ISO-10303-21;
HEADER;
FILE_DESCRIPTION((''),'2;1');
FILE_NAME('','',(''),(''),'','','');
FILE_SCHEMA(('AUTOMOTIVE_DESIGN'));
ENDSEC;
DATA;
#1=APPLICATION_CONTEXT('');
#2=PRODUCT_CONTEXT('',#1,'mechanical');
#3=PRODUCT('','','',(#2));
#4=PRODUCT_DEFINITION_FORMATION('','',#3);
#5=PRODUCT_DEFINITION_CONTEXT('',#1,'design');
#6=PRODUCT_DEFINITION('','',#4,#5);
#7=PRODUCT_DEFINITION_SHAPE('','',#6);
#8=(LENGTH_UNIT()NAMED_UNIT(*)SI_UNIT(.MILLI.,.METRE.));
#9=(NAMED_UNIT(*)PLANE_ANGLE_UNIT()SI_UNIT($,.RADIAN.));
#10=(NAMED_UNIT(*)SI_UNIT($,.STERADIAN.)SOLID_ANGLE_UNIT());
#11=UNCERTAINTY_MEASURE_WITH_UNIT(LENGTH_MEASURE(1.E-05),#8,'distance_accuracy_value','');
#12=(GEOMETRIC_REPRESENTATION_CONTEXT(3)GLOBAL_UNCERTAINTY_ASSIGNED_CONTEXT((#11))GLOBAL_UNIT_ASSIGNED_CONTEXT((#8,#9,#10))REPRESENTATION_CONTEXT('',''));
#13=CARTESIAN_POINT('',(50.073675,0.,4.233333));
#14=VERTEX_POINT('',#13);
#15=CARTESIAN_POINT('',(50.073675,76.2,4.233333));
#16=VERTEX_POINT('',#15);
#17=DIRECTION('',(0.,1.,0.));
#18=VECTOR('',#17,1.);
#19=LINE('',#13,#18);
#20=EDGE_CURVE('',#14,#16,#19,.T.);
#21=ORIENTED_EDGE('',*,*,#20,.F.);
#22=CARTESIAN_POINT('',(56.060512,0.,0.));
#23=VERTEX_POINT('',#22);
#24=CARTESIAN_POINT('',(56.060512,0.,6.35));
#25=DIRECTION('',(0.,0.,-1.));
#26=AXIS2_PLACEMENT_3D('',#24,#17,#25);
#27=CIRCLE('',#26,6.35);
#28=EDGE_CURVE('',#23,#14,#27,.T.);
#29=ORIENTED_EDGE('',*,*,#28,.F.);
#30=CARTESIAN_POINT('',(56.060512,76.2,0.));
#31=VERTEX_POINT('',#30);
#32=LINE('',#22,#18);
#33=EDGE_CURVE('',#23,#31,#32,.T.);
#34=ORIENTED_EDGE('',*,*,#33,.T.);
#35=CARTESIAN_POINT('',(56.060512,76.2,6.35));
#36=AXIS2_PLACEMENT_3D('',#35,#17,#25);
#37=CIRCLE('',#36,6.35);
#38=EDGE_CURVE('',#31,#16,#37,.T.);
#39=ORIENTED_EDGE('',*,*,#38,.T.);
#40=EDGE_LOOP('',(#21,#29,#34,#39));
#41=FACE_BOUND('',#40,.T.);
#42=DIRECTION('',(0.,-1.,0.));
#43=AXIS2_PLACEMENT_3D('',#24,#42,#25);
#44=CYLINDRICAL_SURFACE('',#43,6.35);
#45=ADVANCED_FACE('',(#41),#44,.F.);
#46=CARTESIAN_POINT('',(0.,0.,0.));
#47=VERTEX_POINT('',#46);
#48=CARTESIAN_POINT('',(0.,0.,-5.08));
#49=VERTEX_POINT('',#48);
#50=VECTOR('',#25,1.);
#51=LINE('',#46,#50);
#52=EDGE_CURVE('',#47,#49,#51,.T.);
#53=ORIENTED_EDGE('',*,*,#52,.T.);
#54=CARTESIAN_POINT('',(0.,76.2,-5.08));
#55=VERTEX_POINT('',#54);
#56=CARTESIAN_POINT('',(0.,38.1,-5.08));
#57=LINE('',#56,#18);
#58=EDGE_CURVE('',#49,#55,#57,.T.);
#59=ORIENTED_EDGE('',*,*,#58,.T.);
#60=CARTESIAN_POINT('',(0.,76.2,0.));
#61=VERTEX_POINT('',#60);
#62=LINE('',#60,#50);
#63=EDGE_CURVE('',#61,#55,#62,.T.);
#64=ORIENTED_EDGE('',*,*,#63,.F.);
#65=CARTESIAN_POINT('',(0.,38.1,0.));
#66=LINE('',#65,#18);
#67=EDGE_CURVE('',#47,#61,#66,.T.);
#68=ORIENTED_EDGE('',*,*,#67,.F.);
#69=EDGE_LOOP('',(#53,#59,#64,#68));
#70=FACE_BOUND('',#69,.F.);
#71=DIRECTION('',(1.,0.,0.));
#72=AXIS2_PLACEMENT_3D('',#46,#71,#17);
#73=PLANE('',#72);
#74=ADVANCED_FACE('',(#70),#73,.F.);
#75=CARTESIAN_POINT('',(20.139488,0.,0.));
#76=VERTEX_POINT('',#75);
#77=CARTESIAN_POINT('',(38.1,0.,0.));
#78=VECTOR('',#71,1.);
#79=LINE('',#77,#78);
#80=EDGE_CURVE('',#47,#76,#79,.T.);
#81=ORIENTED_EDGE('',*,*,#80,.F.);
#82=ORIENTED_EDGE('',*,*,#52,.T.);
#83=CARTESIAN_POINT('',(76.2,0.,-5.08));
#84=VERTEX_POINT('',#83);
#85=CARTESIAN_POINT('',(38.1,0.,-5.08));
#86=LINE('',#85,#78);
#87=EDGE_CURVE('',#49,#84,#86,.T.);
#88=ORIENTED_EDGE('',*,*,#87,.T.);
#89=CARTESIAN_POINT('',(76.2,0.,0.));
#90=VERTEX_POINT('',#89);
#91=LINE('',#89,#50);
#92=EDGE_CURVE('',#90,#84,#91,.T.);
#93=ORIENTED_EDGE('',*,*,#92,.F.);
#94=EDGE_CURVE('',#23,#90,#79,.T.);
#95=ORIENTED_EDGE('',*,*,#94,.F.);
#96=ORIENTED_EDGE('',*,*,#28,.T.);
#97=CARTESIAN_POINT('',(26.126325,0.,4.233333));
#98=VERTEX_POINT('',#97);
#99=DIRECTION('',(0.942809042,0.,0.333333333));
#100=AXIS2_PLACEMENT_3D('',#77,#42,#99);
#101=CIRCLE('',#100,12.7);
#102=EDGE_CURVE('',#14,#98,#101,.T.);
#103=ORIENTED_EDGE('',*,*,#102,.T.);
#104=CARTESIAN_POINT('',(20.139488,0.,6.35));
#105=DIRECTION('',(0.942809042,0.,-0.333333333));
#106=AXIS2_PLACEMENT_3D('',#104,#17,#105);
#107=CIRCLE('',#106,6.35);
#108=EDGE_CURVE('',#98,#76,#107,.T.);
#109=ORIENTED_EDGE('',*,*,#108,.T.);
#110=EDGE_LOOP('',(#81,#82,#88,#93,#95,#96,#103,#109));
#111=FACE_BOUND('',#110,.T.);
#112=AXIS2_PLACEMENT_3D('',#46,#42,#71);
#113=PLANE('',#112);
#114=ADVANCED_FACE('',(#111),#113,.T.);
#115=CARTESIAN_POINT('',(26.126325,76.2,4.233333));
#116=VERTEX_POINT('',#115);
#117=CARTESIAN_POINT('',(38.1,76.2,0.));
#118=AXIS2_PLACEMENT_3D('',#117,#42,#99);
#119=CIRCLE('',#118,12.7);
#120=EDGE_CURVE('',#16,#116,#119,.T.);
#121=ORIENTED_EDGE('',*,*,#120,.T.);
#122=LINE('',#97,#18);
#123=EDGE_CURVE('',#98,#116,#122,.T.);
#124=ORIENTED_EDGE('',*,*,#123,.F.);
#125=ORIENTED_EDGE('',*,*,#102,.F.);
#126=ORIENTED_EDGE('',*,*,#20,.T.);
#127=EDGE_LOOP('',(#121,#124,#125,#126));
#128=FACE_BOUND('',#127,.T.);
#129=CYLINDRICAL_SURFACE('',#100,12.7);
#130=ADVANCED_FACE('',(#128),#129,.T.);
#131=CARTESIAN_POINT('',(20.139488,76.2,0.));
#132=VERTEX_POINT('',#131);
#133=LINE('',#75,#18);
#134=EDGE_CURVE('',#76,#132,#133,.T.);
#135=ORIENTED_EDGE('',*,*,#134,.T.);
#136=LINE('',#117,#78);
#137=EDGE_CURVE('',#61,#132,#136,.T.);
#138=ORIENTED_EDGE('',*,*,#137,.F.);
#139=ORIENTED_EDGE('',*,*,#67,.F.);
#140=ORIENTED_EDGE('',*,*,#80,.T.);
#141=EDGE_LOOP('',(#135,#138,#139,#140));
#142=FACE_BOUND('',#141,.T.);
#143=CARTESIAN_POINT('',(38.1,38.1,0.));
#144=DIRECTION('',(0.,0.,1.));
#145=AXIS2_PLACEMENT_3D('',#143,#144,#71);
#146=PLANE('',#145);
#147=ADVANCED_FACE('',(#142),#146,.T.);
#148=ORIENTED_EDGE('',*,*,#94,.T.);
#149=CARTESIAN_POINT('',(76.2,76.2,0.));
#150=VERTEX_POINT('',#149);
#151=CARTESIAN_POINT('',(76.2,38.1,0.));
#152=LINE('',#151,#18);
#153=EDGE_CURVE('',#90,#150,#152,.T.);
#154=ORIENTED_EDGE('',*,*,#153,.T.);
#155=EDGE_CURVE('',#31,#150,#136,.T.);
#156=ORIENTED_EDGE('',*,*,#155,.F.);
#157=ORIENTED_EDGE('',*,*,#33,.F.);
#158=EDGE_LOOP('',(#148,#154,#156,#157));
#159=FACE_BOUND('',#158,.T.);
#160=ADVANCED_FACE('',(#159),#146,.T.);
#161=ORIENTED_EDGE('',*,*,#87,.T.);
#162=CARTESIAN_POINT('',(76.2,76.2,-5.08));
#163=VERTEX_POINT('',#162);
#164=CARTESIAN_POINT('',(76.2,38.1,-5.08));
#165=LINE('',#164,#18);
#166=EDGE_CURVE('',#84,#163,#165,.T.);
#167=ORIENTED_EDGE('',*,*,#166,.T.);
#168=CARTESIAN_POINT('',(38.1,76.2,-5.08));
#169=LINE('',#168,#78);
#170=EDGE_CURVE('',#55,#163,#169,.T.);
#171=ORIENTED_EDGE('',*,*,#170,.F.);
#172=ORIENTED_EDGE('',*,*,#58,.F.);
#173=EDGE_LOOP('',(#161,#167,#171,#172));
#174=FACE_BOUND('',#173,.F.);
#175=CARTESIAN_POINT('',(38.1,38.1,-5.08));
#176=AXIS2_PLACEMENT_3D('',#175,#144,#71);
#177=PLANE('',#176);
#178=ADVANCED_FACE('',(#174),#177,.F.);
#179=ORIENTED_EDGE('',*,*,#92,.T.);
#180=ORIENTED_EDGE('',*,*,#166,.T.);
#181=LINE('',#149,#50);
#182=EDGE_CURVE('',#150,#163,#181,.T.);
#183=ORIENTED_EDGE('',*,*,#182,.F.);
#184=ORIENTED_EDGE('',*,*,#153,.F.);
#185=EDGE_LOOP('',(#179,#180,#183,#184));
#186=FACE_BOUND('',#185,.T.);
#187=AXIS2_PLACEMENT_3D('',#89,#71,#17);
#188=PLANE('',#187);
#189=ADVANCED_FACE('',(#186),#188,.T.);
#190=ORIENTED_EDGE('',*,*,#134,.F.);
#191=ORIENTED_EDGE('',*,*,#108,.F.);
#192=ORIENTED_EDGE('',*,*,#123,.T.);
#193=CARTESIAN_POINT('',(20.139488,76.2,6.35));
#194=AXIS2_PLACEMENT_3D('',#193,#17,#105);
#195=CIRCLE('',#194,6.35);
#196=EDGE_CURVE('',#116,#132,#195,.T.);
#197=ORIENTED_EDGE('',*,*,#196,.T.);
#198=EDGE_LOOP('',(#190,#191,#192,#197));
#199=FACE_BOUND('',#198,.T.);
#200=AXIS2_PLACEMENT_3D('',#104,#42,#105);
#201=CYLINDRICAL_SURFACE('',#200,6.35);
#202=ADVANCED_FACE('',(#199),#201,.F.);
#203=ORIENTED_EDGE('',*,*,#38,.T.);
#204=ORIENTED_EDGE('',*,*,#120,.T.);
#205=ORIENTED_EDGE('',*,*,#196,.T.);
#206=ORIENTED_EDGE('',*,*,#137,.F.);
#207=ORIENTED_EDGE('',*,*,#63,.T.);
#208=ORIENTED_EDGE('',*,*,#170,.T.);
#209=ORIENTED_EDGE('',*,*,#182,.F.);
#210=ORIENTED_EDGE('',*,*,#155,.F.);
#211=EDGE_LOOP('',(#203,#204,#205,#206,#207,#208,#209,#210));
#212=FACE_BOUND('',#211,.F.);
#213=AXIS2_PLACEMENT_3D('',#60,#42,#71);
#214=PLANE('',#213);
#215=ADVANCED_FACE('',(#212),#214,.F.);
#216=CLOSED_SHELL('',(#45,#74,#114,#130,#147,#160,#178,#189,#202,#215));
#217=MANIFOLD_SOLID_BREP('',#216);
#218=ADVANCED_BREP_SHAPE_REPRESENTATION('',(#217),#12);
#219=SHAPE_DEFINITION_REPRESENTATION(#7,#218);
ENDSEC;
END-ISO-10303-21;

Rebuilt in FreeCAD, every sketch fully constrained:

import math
import FreeCAD as App
import Part
import Sketcher

V = App.Vector
Q = App.Units.Quantity


def add_polygon(sketch, points):
    """Adds a closed chain of lines whose ends are joined by coincident constraints."""
    first, n = sketch.GeometryCount, len(points)
    for a, b in zip(points, points[1:] + points[:1]):
        sketch.addGeometry(Part.LineSegment(App.Vector(*a, 0), App.Vector(*b, 0)), False)
    for i in range(n):
        sketch.addConstraint(Sketcher.Constraint("Coincident", first + i, 2, first + (i + 1) % n, 1))

doc = App.newDocument("Part")
body = doc.addObject("PartDesign::Body", "Body")

# Sketch on XZ plane
sketch1 = body.newObject("Sketcher::SketchObject", "Sketch")
sketch1.AttachmentSupport = (doc.getObject("XZ_Plane"), [""])
sketch1.MapMode = "FlatFace"
add_polygon(sketch1, [(0, 76.2), (0, 0), (76.2, 0), (76.2, 76.2)])  # lines 0-3
sketch1.addConstraint(Sketcher.Constraint("Vertical", 0))
sketch1.addConstraint(Sketcher.Constraint("Horizontal", 1))
sketch1.addConstraint(Sketcher.Constraint("Vertical", 2))
sketch1.addConstraint(Sketcher.Constraint("Horizontal", 3))
sketch1.addConstraint(Sketcher.Constraint("Coincident", 0, 2, -1, 1))
sketch1.addConstraint(Sketcher.Constraint("Equal", 3, 0))
sketch1.addConstraint(Sketcher.Constraint("DistanceX", 1, 1, 1, 2, Q("3 in")))
pad1 = body.newObject("PartDesign::Pad", "Pad")
pad1.Profile = sketch1
pad1.Length = Q("0.2 in")
pad1.Reversed = True

# Sketch on XY plane
sketch2 = body.newObject("Sketcher::SketchObject", "Sketch001")
sketch2.AttachmentSupport = (doc.getObject("XY_Plane"), [""])
sketch2.MapMode = "FlatFace"
sketch2.addGeometry(Part.ArcOfCircle(Part.Circle(V(56.060512, -6.35, 0), V(0, 0, 1), 6.35), math.radians(90), math.radians(160.528779)), False)
sketch2.addGeometry(Part.ArcOfCircle(Part.Circle(V(38.1, 0, 0), V(0, 0, 1), 12.7), math.radians(-160.528779), math.radians(-19.471221)), False)
sketch2.addGeometry(Part.ArcOfCircle(Part.Circle(V(20.139488, -6.35, 0), V(0, 0, 1), 6.35), math.radians(19.471221), math.radians(90)), False)
sketch2.addGeometry(Part.LineSegment(V(20.139488, 0, 0), V(56.060512, 0, 0)), False)
sketch2.addConstraint(Sketcher.Constraint("Tangent", 0, 2, 1, 2))
sketch2.addConstraint(Sketcher.Constraint("Tangent", 1, 1, 2, 1))
sketch2.addConstraint(Sketcher.Constraint("Tangent", 2, 2, 3, 1))
sketch2.addConstraint(Sketcher.Constraint("Tangent", 3, 2, 0, 1))
sketch2.addConstraint(Sketcher.Constraint("Horizontal", 3))
sketch2.addConstraint(Sketcher.Constraint("Equal", 0, 2))
sketch2.addConstraint(Sketcher.Constraint("PointOnObject", 1, 3, -1))
sketch2.addConstraint(Sketcher.Constraint("PointOnObject", 2, 2, -1))
sketch2.addConstraint(Sketcher.Constraint("Radius", 1, Q("0.5 in")))
sketch2.addConstraint(Sketcher.Constraint("Radius", 0, Q("0.25 in")))
sketch2.addConstraint(Sketcher.Constraint("DistanceX", -1, 1, 1, 3, Q("1.5 in")))
pad2 = body.newObject("PartDesign::Pad", "Pad001")
pad2.Profile = sketch2
pad2.Length = Q("3 in")
body2 = doc.addObject("PartDesign::Body", "Body001")
doc.recompute()

body.Placement = App.Placement(V(0, 0, 0), App.Rotation(V(1, 0, 0), 270))
boolean = body2.newObject("PartDesign::Boolean", "Boolean")
boolean.Type = "Fuse"
boolean.addObjects([body])

doc.recompute()
